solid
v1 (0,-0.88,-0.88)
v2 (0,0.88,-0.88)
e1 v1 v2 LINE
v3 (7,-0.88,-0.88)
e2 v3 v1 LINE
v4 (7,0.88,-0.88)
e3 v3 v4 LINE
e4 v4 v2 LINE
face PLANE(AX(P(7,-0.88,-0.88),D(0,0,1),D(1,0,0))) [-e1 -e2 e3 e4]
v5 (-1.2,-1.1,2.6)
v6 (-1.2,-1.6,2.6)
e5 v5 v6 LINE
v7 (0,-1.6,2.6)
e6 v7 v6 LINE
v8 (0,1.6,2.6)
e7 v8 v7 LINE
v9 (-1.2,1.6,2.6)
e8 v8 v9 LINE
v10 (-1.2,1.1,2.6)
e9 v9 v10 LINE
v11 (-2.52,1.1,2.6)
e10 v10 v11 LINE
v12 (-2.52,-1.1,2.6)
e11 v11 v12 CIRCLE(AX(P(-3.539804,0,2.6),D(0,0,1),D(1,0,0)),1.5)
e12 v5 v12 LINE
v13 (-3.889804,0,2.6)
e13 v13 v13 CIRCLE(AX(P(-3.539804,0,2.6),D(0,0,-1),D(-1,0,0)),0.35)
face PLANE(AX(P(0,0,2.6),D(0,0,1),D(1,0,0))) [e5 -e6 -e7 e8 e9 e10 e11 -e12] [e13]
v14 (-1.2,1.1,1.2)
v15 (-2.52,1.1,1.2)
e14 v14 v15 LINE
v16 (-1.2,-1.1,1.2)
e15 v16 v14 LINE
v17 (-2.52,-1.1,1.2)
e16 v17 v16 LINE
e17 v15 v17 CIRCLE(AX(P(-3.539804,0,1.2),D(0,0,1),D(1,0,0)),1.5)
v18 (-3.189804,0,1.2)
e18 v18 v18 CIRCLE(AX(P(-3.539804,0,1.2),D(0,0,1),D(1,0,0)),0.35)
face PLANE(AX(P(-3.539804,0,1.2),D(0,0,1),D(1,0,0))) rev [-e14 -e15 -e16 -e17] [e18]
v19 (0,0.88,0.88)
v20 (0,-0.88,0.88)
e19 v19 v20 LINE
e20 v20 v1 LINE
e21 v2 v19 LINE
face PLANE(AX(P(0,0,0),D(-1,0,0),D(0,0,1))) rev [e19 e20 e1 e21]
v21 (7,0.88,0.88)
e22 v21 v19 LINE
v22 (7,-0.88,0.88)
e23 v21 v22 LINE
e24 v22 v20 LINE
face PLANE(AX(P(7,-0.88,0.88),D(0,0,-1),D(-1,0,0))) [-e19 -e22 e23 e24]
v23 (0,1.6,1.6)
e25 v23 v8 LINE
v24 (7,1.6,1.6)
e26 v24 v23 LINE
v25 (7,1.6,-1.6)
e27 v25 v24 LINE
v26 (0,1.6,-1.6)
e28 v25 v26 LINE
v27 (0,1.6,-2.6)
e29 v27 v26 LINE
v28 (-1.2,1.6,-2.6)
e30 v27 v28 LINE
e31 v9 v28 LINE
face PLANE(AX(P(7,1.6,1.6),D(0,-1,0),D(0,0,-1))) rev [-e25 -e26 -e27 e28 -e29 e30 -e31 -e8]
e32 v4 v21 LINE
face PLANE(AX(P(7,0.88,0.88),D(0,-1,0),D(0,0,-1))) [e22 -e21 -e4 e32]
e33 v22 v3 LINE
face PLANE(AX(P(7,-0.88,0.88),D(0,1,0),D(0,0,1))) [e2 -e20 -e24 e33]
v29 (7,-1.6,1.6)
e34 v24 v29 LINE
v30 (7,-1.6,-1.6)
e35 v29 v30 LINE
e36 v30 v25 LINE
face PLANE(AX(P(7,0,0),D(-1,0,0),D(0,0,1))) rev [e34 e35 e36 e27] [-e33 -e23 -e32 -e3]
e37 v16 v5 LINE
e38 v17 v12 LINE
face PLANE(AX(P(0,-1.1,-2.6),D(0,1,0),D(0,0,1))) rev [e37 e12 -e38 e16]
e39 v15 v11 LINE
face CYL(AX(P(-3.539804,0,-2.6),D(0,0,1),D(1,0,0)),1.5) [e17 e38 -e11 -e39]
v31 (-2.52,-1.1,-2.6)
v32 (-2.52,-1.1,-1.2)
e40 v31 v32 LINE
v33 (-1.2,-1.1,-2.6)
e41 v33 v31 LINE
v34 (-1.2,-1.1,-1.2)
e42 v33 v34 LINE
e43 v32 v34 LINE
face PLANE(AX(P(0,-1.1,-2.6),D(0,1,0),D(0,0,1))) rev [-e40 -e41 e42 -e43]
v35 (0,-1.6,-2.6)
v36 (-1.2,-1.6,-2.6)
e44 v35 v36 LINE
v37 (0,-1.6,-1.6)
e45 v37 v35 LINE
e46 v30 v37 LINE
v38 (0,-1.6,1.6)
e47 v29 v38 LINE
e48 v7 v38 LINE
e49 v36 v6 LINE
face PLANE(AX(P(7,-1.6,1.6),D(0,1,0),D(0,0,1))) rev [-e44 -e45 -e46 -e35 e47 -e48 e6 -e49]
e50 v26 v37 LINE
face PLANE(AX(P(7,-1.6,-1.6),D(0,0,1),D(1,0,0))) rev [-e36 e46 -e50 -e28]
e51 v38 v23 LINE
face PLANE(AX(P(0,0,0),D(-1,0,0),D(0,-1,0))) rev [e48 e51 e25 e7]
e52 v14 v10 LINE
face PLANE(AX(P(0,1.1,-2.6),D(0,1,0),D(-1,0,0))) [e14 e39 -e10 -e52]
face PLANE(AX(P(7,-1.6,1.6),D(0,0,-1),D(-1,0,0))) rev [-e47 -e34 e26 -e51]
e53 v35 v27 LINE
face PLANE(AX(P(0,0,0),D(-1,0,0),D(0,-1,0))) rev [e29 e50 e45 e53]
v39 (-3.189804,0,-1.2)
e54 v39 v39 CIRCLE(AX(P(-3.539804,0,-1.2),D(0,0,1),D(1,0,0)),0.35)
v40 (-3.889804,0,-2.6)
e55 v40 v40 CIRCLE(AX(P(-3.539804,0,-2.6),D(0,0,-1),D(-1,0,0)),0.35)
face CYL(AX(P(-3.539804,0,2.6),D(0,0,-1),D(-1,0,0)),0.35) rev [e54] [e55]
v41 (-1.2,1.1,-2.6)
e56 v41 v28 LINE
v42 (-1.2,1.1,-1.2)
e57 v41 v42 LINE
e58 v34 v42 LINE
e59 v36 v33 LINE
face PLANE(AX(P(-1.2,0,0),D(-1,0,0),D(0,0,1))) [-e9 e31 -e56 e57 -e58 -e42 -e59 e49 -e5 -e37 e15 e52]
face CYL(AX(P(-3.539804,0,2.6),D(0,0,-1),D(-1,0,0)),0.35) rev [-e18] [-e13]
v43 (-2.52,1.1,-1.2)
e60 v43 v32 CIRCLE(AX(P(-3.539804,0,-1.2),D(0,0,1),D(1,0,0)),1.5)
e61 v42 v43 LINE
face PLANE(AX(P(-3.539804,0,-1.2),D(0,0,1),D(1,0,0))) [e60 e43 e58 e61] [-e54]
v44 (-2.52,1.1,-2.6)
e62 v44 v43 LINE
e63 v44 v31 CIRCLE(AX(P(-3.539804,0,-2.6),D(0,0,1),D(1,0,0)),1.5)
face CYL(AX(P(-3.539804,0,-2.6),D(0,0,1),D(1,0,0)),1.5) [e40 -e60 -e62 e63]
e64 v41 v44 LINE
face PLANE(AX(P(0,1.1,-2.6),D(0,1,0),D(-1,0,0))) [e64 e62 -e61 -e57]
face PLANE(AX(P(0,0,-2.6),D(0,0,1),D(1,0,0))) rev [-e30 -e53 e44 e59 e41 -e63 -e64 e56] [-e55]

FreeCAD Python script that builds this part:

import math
import FreeCAD as App
import Part
import Sketcher
Q = App.Units.Quantity


def add_polygon(sketch, points):
    """Adds a closed chain of lines whose ends are joined by coincident constraints."""
    first, n = sketch.GeometryCount, len(points)
    for a, b in zip(points, points[1:] + points[:1]):
        sketch.addGeometry(Part.LineSegment(App.Vector(*a, 0), App.Vector(*b, 0)), False)
    for i in range(n):
        sketch.addConstraint(Sketcher.Constraint("Coincident", first + i, 2, first + (i + 1) % n, 1))

doc = App.newDocument("Part")
body = doc.addObject("PartDesign::Body", "Body")

# Sketch on YZ plane
sketch1 = body.newObject("Sketcher::SketchObject", "Sketch")
sketch1.AttachmentSupport = (doc.getObject("YZ_Plane"), [""])
sketch1.MapMode = "FlatFace"
add_polygon(sketch1, [(1.6, 1.6), (-1.6, 1.6), (-1.6, -1.6), (1.6, -1.6)])  # lines 0-3
add_polygon(sketch1, [(-0.9, -0.9), (-0.9, 0.9), (0.9, 0.9), (0.9, -0.9)])  # lines 4-7
sketch1.addConstraint([
    Sketcher.Constraint("Horizontal", 0),
    Sketcher.Constraint("Vertical", 1),
    Sketcher.Constraint("Horizontal", 2),
    Sketcher.Constraint("Vertical", 3),
    Sketcher.Constraint("Vertical", 4),
    Sketcher.Constraint("Horizontal", 5),
    Sketcher.Constraint("Vertical", 6),
    Sketcher.Constraint("Horizontal", 7),
    Sketcher.Constraint("Symmetric", 0, 2, 2, 2, -1, 1),
    Sketcher.Constraint("Symmetric", 4, 2, 6, 2, -1, 1),
    Sketcher.Constraint("Equal", 2, 1),
    Sketcher.Constraint("Equal", 7, 4),
    Sketcher.Constraint("DistanceX", 0, 2, 0, 1, Q("3.2 mm")),
    Sketcher.Constraint("DistanceX", 5, 1, 5, 2, Q("1.76 mm")),
])
pad1 = body.newObject("PartDesign::Pad", "Pad")
pad1.Profile = sketch1
pad1.Length = 7

# Sketch on YZ plane
sketch2 = body.newObject("Sketcher::SketchObject", "Sketch001")
sketch2.AttachmentSupport = (doc.getObject("YZ_Plane"), [""])
sketch2.MapMode = "FlatFace"
add_polygon(sketch2, [(1.6, -1.6), (-1.6, -1.6), (-1.6, 1.6), (1.6, 1.6)])  # lines 0-3
sketch2.addConstraint([
    Sketcher.Constraint("Horizontal", 0),
    Sketcher.Constraint("Vertical", 1),
    Sketcher.Constraint("Horizontal", 2),
    Sketcher.Constraint("Vertical", 3),
    Sketcher.Constraint("Symmetric", 0, 2, 2, 2, -1, 1),
    Sketcher.Constraint("Equal", 2, 1),
    Sketcher.Constraint("DistanceX", 0, 2, 0, 1, Q("3.2 mm")),
])
pad2 = body.newObject("PartDesign::Pad", "Pad001")
pad2.Profile = sketch2
pad2.Length = 1.2
pad2.Reversed = True

# Sketch on XY plane
sketch3 = body.newObject("Sketcher::SketchObject", "Sketch002")
sketch3.AttachmentSupport = (doc.getObject("XY_Plane"), [""])
sketch3.MapMode = "FlatFace"
sketch3.addGeometry([
    Part.LineSegment(App.Vector(-1.2, 1.1, 0), App.Vector(-2.5, 1.1, 0)),
    Part.ArcOfCircle(Part.Circle(App.Vector(-3.5, 0, 0), App.Vector(0, 0, 1), 1.5), math.radians(47), math.radians(313)),
    Part.LineSegment(App.Vector(-2.5, -1.1, 0), App.Vector(-1.2, -1.1, 0)),
    Part.LineSegment(App.Vector(-1.2, -1.1, 0), App.Vector(-1.2, 1.1, 0)),
], False)
sketch3.addConstraint([
    Sketcher.Constraint("Coincident", 0, 2, 1, 1),
    Sketcher.Constraint("Coincident", 1, 2, 2, 1),
    Sketcher.Constraint("Coincident", 2, 2, 3, 1),
    Sketcher.Constraint("Coincident", 3, 2, 0, 1),
    Sketcher.Constraint("Horizontal", 0),
    Sketcher.Constraint("Horizontal", 2),
    Sketcher.Constraint("Vertical", 3),
    Sketcher.Constraint("Symmetric", 0, 2, 1, 2, -1),
    Sketcher.Constraint("Radius", 1, Q("1.5 mm")),
    Sketcher.Constraint("DistanceY", 3, 1, 3, 2, Q("2.2 mm")),
    Sketcher.Constraint("DistanceX", 0, 2, 0, 1, Q("1.32 mm")),
    Sketcher.Constraint("DistanceX", 2, 2, -1, 1, Q("1.2 mm")),
])
pad3 = body.newObject("PartDesign::Pad", "Pad002")
pad3.Profile = sketch3
pad3.Length = 5.2
pad3.Midplane = True

# Sketch on XY plane
sketch4 = body.newObject("Sketcher::SketchObject", "Sketch003")
sketch4.AttachmentSupport = (doc.getObject("XY_Plane"), [""])
sketch4.MapMode = "FlatFace"
sketch4.addGeometry([
    Part.LineSegment(App.Vector(-1.2, 1.1, 0), App.Vector(-2.5, 1.1, 0)),
    Part.ArcOfCircle(Part.Circle(App.Vector(-3.5, 0, 0), App.Vector(0, 0, 1), 1.5), math.radians(47), math.radians(313)),
    Part.LineSegment(App.Vector(-2.5, -1.1, 0), App.Vector(-1.2, -1.1, 0)),
    Part.LineSegment(App.Vector(-1.2, -1.1, 0), App.Vector(-1.2, 1.1, 0)),
], False)
sketch4.addConstraint([
    Sketcher.Constraint("Coincident", 0, 2, 1, 1),
    Sketcher.Constraint("Coincident", 1, 2, 2, 1),
    Sketcher.Constraint("Coincident", 2, 2, 3, 1),
    Sketcher.Constraint("Coincident", 3, 2, 0, 1),
    Sketcher.Constraint("Horizontal", 0),
    Sketcher.Constraint("Horizontal", 2),
    Sketcher.Constraint("Vertical", 3),
    Sketcher.Constraint("Symmetric", 0, 2, 1, 2, -1),
    Sketcher.Constraint("Radius", 1, Q("1.5 mm")),
    Sketcher.Constraint("DistanceY", 3, 1, 3, 2, Q("2.2 mm")),
    Sketcher.Constraint("DistanceX", 0, 2, 0, 1, Q("1.32 mm")),
    Sketcher.Constraint("DistanceX", 2, 2, -1, 1, Q("1.2 mm")),
])
pocket1 = body.newObject("PartDesign::Pocket", "Pocket")
pocket1.Profile = sketch4
pocket1.Length = 2.4
pocket1.Midplane = True

# Sketch on YZ plane
sketch5 = body.newObject("Sketcher::SketchObject", "Sketch004")
sketch5.AttachmentSupport = (doc.getObject("YZ_Plane"), [""])
sketch5.MapMode = "FlatFace"
sketch5.AttachmentOffset = App.Placement(App.Vector(0, 0, -1.2), App.Rotation())
add_polygon(sketch5, [(1.6, 2.6), (-1.6, 2.6), (-1.6, -2.6), (1.6, -2.6)])  # lines 0-3
sketch5.addConstraint([
    Sketcher.Constraint("Horizontal", 0),
    Sketcher.Constraint("Vertical", 1),
    Sketcher.Constraint("Horizontal", 2),
    Sketcher.Constraint("Vertical", 3),
    Sketcher.Constraint("Symmetric", 0, 2, 2, 2, -1, 1),
    Sketcher.Constraint("DistanceX", 0, 2, 0, 1, Q("3.2 mm")),
    Sketcher.Constraint("DistanceY", 1, 2, 1, 1, Q("5.2 mm")),
])
pad4 = body.newObject("PartDesign::Pad", "Pad003")
pad4.Profile = sketch5
pad4.Length = 1.2

# Sketch on XY plane
sketch6 = body.newObject("Sketcher::SketchObject", "Sketch005")
sketch6.AttachmentSupport = (doc.getObject("XY_Plane"), [""])
sketch6.MapMode = "FlatFace"
sketch6.AttachmentOffset = App.Placement(App.Vector(0, 0, 1.2), App.Rotation())
sketch6.addGeometry(Part.Circle(App.Vector(-3.54, 0, 0), App.Vector(0, 0, 1), 0.35), False)
sketch6.addConstraint([
    Sketcher.Constraint("PointOnObject", 0, 3, -1),
    Sketcher.Constraint("Diameter", 0, Q("0.7 mm")),
    Sketcher.Constraint("DistanceX", 0, 3, -1, 1, Q("3.539804 mm")),
])
pocket2 = body.newObject("PartDesign::Pocket", "Pocket001")
pocket2.Profile = sketch6
pocket2.Type = "ThroughAll"
pocket2.Midplane = True

doc.recompute()
